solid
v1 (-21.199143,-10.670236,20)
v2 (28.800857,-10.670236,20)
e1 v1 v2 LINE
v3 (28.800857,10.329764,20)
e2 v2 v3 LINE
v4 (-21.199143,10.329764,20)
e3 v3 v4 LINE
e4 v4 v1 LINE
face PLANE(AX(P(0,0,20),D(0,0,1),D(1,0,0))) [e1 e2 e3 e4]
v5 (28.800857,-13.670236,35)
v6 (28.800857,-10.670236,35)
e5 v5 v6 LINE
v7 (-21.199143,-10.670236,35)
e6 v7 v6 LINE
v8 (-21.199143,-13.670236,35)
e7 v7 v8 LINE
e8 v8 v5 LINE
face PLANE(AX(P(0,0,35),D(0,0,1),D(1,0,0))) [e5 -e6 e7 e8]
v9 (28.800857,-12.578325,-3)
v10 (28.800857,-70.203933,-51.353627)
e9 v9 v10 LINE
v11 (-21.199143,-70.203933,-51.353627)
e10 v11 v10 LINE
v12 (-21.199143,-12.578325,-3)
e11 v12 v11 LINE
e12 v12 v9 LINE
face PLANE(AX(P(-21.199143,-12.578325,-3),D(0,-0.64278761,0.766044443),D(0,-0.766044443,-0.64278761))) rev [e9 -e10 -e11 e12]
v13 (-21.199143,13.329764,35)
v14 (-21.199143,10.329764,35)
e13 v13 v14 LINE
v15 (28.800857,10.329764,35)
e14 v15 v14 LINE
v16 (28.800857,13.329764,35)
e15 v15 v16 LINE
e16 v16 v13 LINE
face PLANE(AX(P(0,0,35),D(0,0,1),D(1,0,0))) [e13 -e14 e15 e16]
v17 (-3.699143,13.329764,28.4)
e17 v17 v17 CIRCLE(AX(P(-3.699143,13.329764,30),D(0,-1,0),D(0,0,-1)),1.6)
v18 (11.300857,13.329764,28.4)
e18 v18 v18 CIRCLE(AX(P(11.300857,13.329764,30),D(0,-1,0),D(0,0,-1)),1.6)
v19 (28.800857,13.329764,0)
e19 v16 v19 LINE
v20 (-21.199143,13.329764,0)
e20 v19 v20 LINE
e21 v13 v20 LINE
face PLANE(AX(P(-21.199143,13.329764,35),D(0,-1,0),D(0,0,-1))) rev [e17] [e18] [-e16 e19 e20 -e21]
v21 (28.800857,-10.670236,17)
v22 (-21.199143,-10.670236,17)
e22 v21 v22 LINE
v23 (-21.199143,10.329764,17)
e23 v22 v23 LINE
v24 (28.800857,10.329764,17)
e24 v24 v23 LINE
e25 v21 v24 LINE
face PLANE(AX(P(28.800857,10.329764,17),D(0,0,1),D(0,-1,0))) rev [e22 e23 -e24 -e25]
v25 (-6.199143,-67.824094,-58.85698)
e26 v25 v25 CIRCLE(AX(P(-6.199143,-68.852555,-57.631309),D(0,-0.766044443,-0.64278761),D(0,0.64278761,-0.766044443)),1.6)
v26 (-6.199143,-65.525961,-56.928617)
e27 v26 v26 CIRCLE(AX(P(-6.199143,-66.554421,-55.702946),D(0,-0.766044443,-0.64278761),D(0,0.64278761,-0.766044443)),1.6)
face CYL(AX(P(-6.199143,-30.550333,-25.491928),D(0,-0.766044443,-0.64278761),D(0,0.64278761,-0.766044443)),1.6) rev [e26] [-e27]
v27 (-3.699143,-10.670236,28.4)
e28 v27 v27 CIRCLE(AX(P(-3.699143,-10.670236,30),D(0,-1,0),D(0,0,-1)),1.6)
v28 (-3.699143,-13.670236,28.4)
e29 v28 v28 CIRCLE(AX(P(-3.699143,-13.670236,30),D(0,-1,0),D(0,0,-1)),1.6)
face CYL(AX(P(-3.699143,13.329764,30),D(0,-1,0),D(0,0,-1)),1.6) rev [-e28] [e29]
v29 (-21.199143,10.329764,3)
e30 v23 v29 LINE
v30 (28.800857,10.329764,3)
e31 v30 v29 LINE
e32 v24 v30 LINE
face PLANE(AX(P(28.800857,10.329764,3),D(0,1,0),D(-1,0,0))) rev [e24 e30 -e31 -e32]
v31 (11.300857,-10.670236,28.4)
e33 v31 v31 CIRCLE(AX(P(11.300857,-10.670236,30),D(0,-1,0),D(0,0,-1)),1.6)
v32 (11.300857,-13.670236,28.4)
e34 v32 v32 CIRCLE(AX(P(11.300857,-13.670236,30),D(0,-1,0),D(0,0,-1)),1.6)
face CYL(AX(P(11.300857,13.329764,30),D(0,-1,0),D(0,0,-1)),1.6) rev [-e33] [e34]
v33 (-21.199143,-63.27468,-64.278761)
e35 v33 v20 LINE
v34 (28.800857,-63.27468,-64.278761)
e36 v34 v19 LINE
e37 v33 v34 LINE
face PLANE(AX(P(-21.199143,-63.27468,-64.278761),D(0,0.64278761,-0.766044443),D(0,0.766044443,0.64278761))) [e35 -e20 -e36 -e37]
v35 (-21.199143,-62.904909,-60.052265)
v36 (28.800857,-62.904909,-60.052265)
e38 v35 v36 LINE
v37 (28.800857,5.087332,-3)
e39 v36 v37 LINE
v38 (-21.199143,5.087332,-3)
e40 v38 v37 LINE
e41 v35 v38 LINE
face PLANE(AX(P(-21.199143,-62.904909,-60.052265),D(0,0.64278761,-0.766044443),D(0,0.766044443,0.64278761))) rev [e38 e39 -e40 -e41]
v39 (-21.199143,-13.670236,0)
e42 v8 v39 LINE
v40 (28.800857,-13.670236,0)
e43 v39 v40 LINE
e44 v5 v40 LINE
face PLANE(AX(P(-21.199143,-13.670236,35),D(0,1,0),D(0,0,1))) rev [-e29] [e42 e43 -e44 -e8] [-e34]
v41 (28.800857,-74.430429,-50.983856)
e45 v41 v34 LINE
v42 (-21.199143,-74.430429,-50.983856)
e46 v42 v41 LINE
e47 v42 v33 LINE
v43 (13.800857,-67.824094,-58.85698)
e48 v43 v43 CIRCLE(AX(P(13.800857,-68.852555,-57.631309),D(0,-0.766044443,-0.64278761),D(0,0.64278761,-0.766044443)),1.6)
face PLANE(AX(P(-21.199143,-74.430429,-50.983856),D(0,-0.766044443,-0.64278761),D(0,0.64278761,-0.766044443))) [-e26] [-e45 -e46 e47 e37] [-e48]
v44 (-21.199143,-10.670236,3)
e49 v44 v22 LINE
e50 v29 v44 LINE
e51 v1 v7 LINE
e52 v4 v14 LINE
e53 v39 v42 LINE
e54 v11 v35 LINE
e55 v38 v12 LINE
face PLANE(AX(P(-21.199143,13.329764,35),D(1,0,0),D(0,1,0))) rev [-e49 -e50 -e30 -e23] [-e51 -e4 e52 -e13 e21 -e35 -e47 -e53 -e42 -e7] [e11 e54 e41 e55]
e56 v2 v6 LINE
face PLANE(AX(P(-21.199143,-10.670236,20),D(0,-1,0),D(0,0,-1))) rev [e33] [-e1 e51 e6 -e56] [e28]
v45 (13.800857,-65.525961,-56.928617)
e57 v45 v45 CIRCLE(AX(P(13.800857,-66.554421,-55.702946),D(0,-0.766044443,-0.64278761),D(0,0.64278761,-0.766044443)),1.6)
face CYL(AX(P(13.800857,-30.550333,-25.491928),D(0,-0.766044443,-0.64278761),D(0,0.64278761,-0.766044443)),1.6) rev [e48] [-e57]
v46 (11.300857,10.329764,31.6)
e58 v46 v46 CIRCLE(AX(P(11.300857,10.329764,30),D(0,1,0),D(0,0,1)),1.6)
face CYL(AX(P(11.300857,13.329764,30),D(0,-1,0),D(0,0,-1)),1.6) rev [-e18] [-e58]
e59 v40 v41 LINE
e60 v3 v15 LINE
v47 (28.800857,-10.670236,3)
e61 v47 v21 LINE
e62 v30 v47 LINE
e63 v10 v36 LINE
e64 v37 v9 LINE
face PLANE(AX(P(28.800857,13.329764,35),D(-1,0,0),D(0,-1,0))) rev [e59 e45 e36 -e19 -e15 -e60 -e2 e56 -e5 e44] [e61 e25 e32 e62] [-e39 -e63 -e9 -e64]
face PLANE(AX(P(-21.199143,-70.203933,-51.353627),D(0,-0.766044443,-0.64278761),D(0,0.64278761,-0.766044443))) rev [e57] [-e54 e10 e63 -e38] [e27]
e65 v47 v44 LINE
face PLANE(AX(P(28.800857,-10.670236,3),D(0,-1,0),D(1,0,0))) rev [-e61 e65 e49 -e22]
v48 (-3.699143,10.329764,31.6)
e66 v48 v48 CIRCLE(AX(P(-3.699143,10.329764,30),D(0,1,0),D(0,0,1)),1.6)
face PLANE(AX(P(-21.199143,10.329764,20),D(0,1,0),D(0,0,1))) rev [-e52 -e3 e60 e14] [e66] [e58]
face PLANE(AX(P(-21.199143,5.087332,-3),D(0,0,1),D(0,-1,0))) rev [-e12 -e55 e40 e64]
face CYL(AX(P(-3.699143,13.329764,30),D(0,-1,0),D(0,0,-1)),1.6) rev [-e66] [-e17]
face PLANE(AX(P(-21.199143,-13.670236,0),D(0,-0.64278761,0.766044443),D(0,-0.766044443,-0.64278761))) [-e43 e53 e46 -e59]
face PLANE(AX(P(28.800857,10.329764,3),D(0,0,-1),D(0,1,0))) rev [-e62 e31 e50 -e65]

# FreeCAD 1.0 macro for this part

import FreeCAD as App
import Part
import Sketcher
Q = App.Units.Quantity

doc = App.newDocument("Part")
body = doc.addObject("PartDesign::Body", "Body")

# Sketch on XY plane
sketch1 = body.newObject("Sketcher::SketchObject", "Sketch")
sketch1.AttachmentSupport = (doc.getObject("XY_Plane"), [""])
sketch1.MapMode = "FlatFace"
sketch1.addGeometry([
    Part.LineSegment(App.Vector(-21.199143, 13.329764, 0), App.Vector(-21.199143, -13.670236, 0)),
    Part.LineSegment(App.Vector(-21.199143, -13.670236, 0), App.Vector(28.800857, -13.670236, 0)),
    Part.LineSegment(App.Vector(28.800857, -13.670236, 0), App.Vector(28.800857, 13.329764, 0)),
    Part.LineSegment(App.Vector(28.800857, 13.329764, 0), App.Vector(-21.199143, 13.329764, 0)),
], False)
sketch1.addConstraint([
    Sketcher.Constraint("Coincident", 0, 2, 1, 1),
    Sketcher.Constraint("Coincident", 1, 2, 2, 1),
    Sketcher.Constraint("Coincident", 2, 2, 3, 1),
    Sketcher.Constraint("Coincident", 3, 2, 0, 1),
    Sketcher.Constraint("Vertical", 0),
    Sketcher.Constraint("Horizontal", 1),
    Sketcher.Constraint("Vertical", 2),
    Sketcher.Constraint("Horizontal", 3),
    Sketcher.Constraint("DistanceX", 1, 1, 1, 2, 50.0),
    Sketcher.Constraint("DistanceY", 0, 2, 0, 1, 27.0),
    Sketcher.Constraint("DistanceX", 0, 2, -1, 1, 21.199143),
    Sketcher.Constraint("DistanceY", 0, 2, -1, 1, 13.670236),
])
pad1 = body.newObject("PartDesign::Pad", "Pad")
pad1.Profile = sketch1
pad1.Length = 35

# Sketch on XY plane
sketch2 = body.newObject("Sketcher::SketchObject", "Sketch001")
sketch2.AttachmentSupport = (doc.getObject("XY_Plane"), [""])
sketch2.MapMode = "FlatFace"
sketch2.AttachmentOffset = App.Placement(App.Vector(0, 0, 35), App.Rotation())
sketch2.addGeometry([
    Part.LineSegment(App.Vector(-21.199143, 10.329764, 0), App.Vector(-21.199143, -10.670236, 0)),
    Part.LineSegment(App.Vector(-21.199143, -10.670236, 0), App.Vector(28.800857, -10.670236, 0)),
    Part.LineSegment(App.Vector(28.800857, -10.670236, 0), App.Vector(28.800857, 10.329764, 0)),
    Part.LineSegment(App.Vector(28.800857, 10.329764, 0), App.Vector(-21.199143, 10.329764, 0)),
], False)
sketch2.addConstraint([
    Sketcher.Constraint("Coincident", 0, 2, 1, 1),
    Sketcher.Constraint("Coincident", 1, 2, 2, 1),
    Sketcher.Constraint("Coincident", 2, 2, 3, 1),
    Sketcher.Constraint("Coincident", 3, 2, 0, 1),
    Sketcher.Constraint("Vertical", 0),
    Sketcher.Constraint("Horizontal", 1),
    Sketcher.Constraint("Vertical", 2),
    Sketcher.Constraint("Horizontal", 3),
    Sketcher.Constraint("DistanceX", 1, 1, 1, 2, 50.0),
    Sketcher.Constraint("DistanceY", 0, 2, 0, 1, 21.0),
    Sketcher.Constraint("DistanceX", 0, 2, -1, 1, 21.199143),
    Sketcher.Constraint("DistanceY", 0, 2, -1, 1, 10.670236),
])
pocket1 = body.newObject("PartDesign::Pocket", "Pocket")
pocket1.Profile = sketch2
pocket1.Length = 15

# Sketch on XZ plane
sketch3 = body.newObject("Sketcher::SketchObject", "Sketch002")
sketch3.AttachmentSupport = (doc.getObject("XZ_Plane"), [""])
sketch3.MapMode = "FlatFace"
sketch3.AttachmentOffset = App.Placement(App.Vector(0, 0, 13.670236), App.Rotation())
sketch3.addGeometry([
    Part.Circle(App.Vector(-3.699143, 30, 0), App.Vector(0, 0, 1), 1.6),
    Part.Circle(App.Vector(11.300857, 30, 0), App.Vector(0, 0, 1), 1.6),
], False)
sketch3.addConstraint([
    Sketcher.Constraint("Equal", 0, 1),
    Sketcher.Constraint("Horizontal", 0, 3, 1, 3),
    Sketcher.Constraint("Diameter", 0, 3.2),
    Sketcher.Constraint("DistanceY", -1, 1, 0, 3, 30.0),
    Sketcher.Constraint("DistanceX", 0, 3, 1, 3, 15.0),
    Sketcher.Constraint("DistanceX", 0, 3, -1, 1, 3.699143),
])
pocket2 = body.newObject("PartDesign::Pocket", "Pocket001")
pocket2.Profile = sketch3
pocket2.Type = "ThroughAll"

# Sketch on YZ plane
sketch4 = body.newObject("Sketcher::SketchObject", "Sketch003")
sketch4.AttachmentSupport = (doc.getObject("YZ_Plane"), [""])
sketch4.MapMode = "FlatFace"
sketch4.AttachmentOffset = App.Placement(App.Vector(0, 0, -21.199143), App.Rotation())
sketch4.addGeometry([
    Part.LineSegment(App.Vector(10.329764, 3, 0), App.Vector(-10.670236, 3, 0)),
    Part.LineSegment(App.Vector(-10.670236, 3, 0), App.Vector(-10.670236, 17, 0)),
    Part.LineSegment(App.Vector(-10.670236, 17, 0), App.Vector(10.329764, 17, 0)),
    Part.LineSegment(App.Vector(10.329764, 17, 0), App.Vector(10.329764, 3, 0)),
], False)
sketch4.addConstraint([
    Sketcher.Constraint("Coincident", 0, 2, 1, 1),
    Sketcher.Constraint("Coincident", 1, 2, 2, 1),
    Sketcher.Constraint("Coincident", 2, 2, 3, 1),
    Sketcher.Constraint("Coincident", 3, 2, 0, 1),
    Sketcher.Constraint("Horizontal", 0),
    Sketcher.Constraint("Vertical", 1),
    Sketcher.Constraint("Horizontal", 2),
    Sketcher.Constraint("Vertical", 3),
    Sketcher.Constraint("DistanceX", 0, 2, 0, 1, 21.0),
    Sketcher.Constraint("DistanceY", 1, 1, 1, 2, 14.0),
    Sketcher.Constraint("DistanceY", -1, 1, 0, 2, 3.0),
    Sketcher.Constraint("DistanceX", 0, 2, -1, 1, 10.670236),
])
pocket3 = body.newObject("PartDesign::Pocket", "Pocket002")
pocket3.Profile = sketch4
pocket3.Type = "ThroughAll"
pocket3.Reversed = True

# Sketch on YZ plane
sketch5 = body.newObject("Sketcher::SketchObject", "Sketch004")
sketch5.AttachmentSupport = (doc.getObject("YZ_Plane"), [""])
sketch5.MapMode = "FlatFace"
sketch5.AttachmentOffset = App.Placement(App.Vector(0, 0, 28.800857), App.Rotation())
sketch5.addGeometry([
    Part.LineSegment(App.Vector(-13.670236, 0, 0), App.Vector(-74.430429, -50.983856, 0)),
    Part.LineSegment(App.Vector(-74.430429, -50.983856, 0), App.Vector(-63.27468, -64.278761, 0)),
    Part.LineSegment(App.Vector(-63.27468, -64.278761, 0), App.Vector(13.329764, 0, 0)),
    Part.LineSegment(App.Vector(13.329764, 0, 0), App.Vector(-13.670236, 0, 0)),
], False)
sketch5.addConstraint([
    Sketcher.Constraint("Coincident", 0, 2, 1, 1),
    Sketcher.Constraint("Coincident", 1, 2, 2, 1),
    Sketcher.Constraint("Coincident", 2, 2, 3, 1),
    Sketcher.Constraint("Coincident", 3, 2, 0, 1),
    Sketcher.Constraint("Horizontal", 3),
    Sketcher.Constraint("PointOnObject", 2, 2, -1),
    Sketcher.Constraint("Perpendicular", 0, 1),
    Sketcher.Constraint("Perpendicular", 1, 2),
    Sketcher.Constraint("DistanceX", 3, 2, 3, 1, 27.0),
    Sketcher.Constraint("Angle", 0, Q("-140 deg")),
    Sketcher.Constraint("Distance", 2, 100.0),
    Sketcher.Constraint("DistanceX", 0, 2, -1, 1, 74.430429),
])
pad2 = body.newObject("PartDesign::Pad", "Pad001")
pad2.Profile = sketch5
pad2.Length = 50
pad2.Reversed = True

# Sketch on YZ plane
sketch6 = body.newObject("Sketcher::SketchObject", "Sketch005")
sketch6.AttachmentSupport = (doc.getObject("YZ_Plane"), [""])
sketch6.MapMode = "FlatFace"
sketch6.AttachmentOffset = App.Placement(App.Vector(0, 0, 28.800857), App.Rotation())
sketch6.addGeometry([
    Part.LineSegment(App.Vector(-62.904909, -60.052265, 0), App.Vector(5.087332, -3, 0)),
    Part.LineSegment(App.Vector(5.087332, -3, 0), App.Vector(-12.578325, -3, 0)),
    Part.LineSegment(App.Vector(-12.578325, -3, 0), App.Vector(-70.203933, -51.353627, 0)),
    Part.LineSegment(App.Vector(-70.203933, -51.353627, 0), App.Vector(-62.904909, -60.052265, 0)),
], False)
sketch6.addConstraint([
    Sketcher.Constraint("Coincident", 0, 2, 1, 1),
    Sketcher.Constraint("Coincident", 1, 2, 2, 1),
    Sketcher.Constraint("Coincident", 2, 2, 3, 1),
    Sketcher.Constraint("Coincident", 3, 2, 0, 1),
    Sketcher.Constraint("Horizontal", 1),
    Sketcher.Constraint("Parallel", 0, 2),
    Sketcher.Constraint("Perpendicular", 2, 3),
    Sketcher.Constraint("Angle", 0, Q("40 deg")),
    Sketcher.Constraint("DistanceY", 0, 2, -1, 1, 3.0),
    Sketcher.Constraint("Distance", 2, 75.224889),
    Sketcher.Constraint("DistanceX", 1, 2, 1, 1, 17.665657),
    Sketcher.Constraint("DistanceX", 3, 2, -1, 1, 62.904909),
])
pocket4 = body.newObject("PartDesign::Pocket", "Pocket003")
pocket4.Profile = sketch6
pocket4.Type = "ThroughAll"

# Sketch on an angled plane
sketch7 = body.newObject("Sketcher::SketchObject", "Sketch006")
sketch7.Placement = App.Placement(App.Vector(0, -68.782217, -57.715133), App.Rotation(App.Vector(-1, 0, 0), App.Vector(0, 0.64278761, -0.766044443), App.Vector(0, -0.766044443, -0.64278761), "ZXY"))
sketch7.addGeometry([
    Part.Circle(App.Vector(-13.800857, -0.109425, 0), App.Vector(0, 0, 1), 1.6),
    Part.Circle(App.Vector(6.199143, -0.109425, 0), App.Vector(0, 0, 1), 1.6),
], False)
sketch7.addConstraint([
    Sketcher.Constraint("Equal", 0, 1),
    Sketcher.Constraint("Horizontal", 0, 3, 1, 3),
    Sketcher.Constraint("Diameter", 0, 3.2),
    Sketcher.Constraint("DistanceX", 0, 3, 1, 3, 20.0),
    Sketcher.Constraint("DistanceX", 0, 3, -1, 1, 13.800857),
    Sketcher.Constraint("DistanceY", 0, 3, -1, 1, 0.109425),
])
pocket5 = body.newObject("PartDesign::Pocket", "Pocket004")
pocket5.Profile = sketch7
pocket5.Length = 50

doc.recompute()
